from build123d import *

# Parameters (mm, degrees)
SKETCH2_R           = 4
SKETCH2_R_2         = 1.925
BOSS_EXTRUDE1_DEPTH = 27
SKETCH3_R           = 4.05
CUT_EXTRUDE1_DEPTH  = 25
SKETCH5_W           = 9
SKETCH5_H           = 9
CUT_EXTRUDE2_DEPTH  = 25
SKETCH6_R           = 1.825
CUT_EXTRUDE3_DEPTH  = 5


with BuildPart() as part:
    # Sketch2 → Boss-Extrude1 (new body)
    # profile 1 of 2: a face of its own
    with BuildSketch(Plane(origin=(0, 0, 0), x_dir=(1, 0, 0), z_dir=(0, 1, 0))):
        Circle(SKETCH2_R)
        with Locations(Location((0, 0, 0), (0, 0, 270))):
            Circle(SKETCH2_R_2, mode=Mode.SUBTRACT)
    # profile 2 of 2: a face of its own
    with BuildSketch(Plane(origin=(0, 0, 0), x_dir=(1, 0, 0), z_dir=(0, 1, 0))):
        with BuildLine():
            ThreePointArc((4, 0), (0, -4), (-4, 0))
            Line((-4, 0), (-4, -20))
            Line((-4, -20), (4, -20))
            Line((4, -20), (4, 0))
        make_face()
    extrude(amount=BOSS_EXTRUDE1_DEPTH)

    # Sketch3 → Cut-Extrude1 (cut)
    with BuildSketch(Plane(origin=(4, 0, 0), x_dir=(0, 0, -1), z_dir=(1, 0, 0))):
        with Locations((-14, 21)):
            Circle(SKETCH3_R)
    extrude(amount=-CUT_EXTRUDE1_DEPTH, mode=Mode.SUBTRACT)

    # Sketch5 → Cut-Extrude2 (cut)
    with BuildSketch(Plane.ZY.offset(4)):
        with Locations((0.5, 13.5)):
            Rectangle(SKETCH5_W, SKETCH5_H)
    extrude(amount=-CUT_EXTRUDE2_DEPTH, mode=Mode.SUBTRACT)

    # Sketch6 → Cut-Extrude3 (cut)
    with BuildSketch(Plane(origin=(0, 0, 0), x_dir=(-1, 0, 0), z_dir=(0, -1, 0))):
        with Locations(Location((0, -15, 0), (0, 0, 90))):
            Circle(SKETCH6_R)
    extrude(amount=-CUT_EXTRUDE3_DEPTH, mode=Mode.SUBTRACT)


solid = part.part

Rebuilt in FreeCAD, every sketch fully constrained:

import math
import FreeCAD as App
import Part
import Sketcher
from FreeCAD import Vector

doc = App.newDocument("Part")
params = doc.addObject("Spreadsheet::Sheet", "Params")
for row, (alias, value) in enumerate([
    ("sketch1_radius", "4 mm"),
    ("sketch1_diameter", "3.85 mm"),
    ("sketch1_height", "20 mm"),
    ("pad1_length", "27 mm"),
    ("sketch2_diameter", "8.1 mm"),
    ("pocket1_length", "25 mm"),
    ("sketch3_width", "9 mm"),
    ("pocket2_length", "25 mm"),
    ("sketch4_diameter", "3.65 mm"),
    ("pocket3_length", "5 mm"),
], start=1):
    params.set(f"A{row}", alias)
    params.set(f"B{row}", "=" + value)
    params.setAlias(f"B{row}", alias)

body = doc.addObject("PartDesign::Body", "Body")

sketch1 = doc.addObject("Sketcher::SketchObject", "Sketch")
body.addObject(sketch1)
sketch1.AttachmentSupport = (doc.XZ_Plane, [""])
sketch1.MapMode = "FlatFace"
sketch1.addGeometry(Part.ArcOfCircle(Part.Circle(Vector(0, 0, 0), Vector(0, 0, 1), 4), math.radians(180), math.radians(360)), False)
sketch1.addGeometry(Part.LineSegment(Vector(-4, 0, 0), Vector(-4, 20, 0)), False)
sketch1.addGeometry(Part.LineSegment(Vector(-4, 20, 0), Vector(4, 20, 0)), False)
sketch1.addGeometry(Part.LineSegment(Vector(4, 20, 0), Vector(4, 0, 0)), False)
sketch1.addGeometry(Part.Circle(Vector(0, 0, 0), Vector(0, 0, 1), 1.9), False)
sketch1.addConstraint(Sketcher.Constraint("Tangent", 0, 1, 1, 1))
sketch1.addConstraint(Sketcher.Constraint("Coincident", 1, 2, 2, 1))
sketch1.addConstraint(Sketcher.Constraint("Coincident", 2, 2, 3, 1))
sketch1.addConstraint(Sketcher.Constraint("Tangent", 3, 2, 0, 2))
sketch1.addConstraint(Sketcher.Constraint("Vertical", 1))
sketch1.addConstraint(Sketcher.Constraint("Horizontal", 2))
sketch1.addConstraint(Sketcher.Constraint("Vertical", 3))
sketch1.addConstraint(Sketcher.Constraint("Coincident", 0, 3, -1, 1))
sketch1.addConstraint(Sketcher.Constraint("Coincident", 4, 3, -1, 1))
sketch1.addConstraint(Sketcher.Constraint("Radius", 0, 4.0))
sketch1.addConstraint(Sketcher.Constraint("Diameter", 4, 3.85))
sketch1.addConstraint(Sketcher.Constraint("DistanceY", 1, 1, 1, 2, 20.0))
sketch1.setExpression("Constraints[9]", "Params.sketch1_radius")
sketch1.setExpression("Constraints[10]", "Params.sketch1_diameter")
sketch1.setExpression("Constraints[11]", "Params.sketch1_height")
pad1 = doc.addObject("PartDesign::Pad", "Pad")
body.addObject(pad1)
pad1.Profile = sketch1
pad1.setExpression("Length", "Params.pad1_length")
pad1.Reversed = True

sketch2 = doc.addObject("Sketcher::SketchObject", "Sketch001")
body.addObject(sketch2)
sketch2.AttachmentSupport = (doc.YZ_Plane, [""])
sketch2.MapMode = "FlatFace"
sketch2.AttachmentOffset = App.Placement(Vector(0, 0, 4), App.Rotation())
sketch2.addGeometry(Part.Circle(Vector(21, 14, 0), Vector(0, 0, 1), 4), False)
sketch2.addConstraint(Sketcher.Constraint("Diameter", 0, 8.1))
sketch2.addConstraint(Sketcher.Constraint("DistanceX", -1, 1, 0, 3, 21.0))
sketch2.addConstraint(Sketcher.Constraint("DistanceY", -1, 1, 0, 3, 14.0))
sketch2.setExpression("Constraints[0]", "Params.sketch2_diameter")
pocket1 = doc.addObject("PartDesign::Pocket", "Pocket")
body.addObject(pocket1)
pocket1.Profile = sketch2
pocket1.setExpression("Length", "Params.pocket1_length")

sketch3 = doc.addObject("Sketcher::SketchObject", "Sketch002")
body.addObject(sketch3)
sketch3.AttachmentSupport = (doc.YZ_Plane, [""])
sketch3.MapMode = "FlatFace"
sketch3.AttachmentOffset = App.Placement(Vector(0, 0, -4), App.Rotation())
sketch3.addGeometry(Part.LineSegment(Vector(18, -4, 0), Vector(9, -4, 0)), False)
sketch3.addGeometry(Part.LineSegment(Vector(9, -4, 0), Vector(9, 5, 0)), False)
sketch3.addGeometry(Part.LineSegment(Vector(9, 5, 0), Vector(18, 5, 0)), False)
sketch3.addGeometry(Part.LineSegment(Vector(18, 5, 0), Vector(18, -4, 0)), False)
sketch3.addConstraint(Sketcher.Constraint("Coincident", 0, 2, 1, 1))
sketch3.addConstraint(Sketcher.Constraint("Coincident", 1, 2, 2, 1))
sketch3.addConstraint(Sketcher.Constraint("Coincident", 2, 2, 3, 1))
sketch3.addConstraint(Sketcher.Constraint("Coincident", 3, 2, 0, 1))
sketch3.addConstraint(Sketcher.Constraint("Horizontal", 0))
sketch3.addConstraint(Sketcher.Constraint("Vertical", 1))
sketch3.addConstraint(Sketcher.Constraint("Horizontal", 2))
sketch3.addConstraint(Sketcher.Constraint("Vertical", 3))
sketch3.addConstraint(Sketcher.Constraint("Equal", 2, 1))
sketch3.addConstraint(Sketcher.Constraint("DistanceX", 0, 2, 0, 1, 9.0))
sketch3.addConstraint(Sketcher.Constraint("DistanceX", -1, 1, 0, 2, 9.0))
sketch3.addConstraint(Sketcher.Constraint("DistanceY", 0, 2, -1, 1, 4.0))
sketch3.setExpression("Constraints[9]", "Params.sketch3_width")
pocket2 = doc.addObject("PartDesign::Pocket", "Pocket001")
body.addObject(pocket2)
pocket2.Profile = sketch3
pocket2.setExpression("Length", "Params.pocket2_length")
pocket2.Reversed = True

sketch4 = doc.addObject("Sketcher::SketchObject", "Sketch003")
body.addObject(sketch4)
sketch4.AttachmentSupport = (doc.XZ_Plane, [""])
sketch4.MapMode = "FlatFace"
sketch4.addGeometry(Part.Circle(Vector(0, 15, 0), Vector(0, 0, 1), 1.8), False)
sketch4.addConstraint(Sketcher.Constraint("PointOnObject", 0, 3, -2))
sketch4.addConstraint(Sketcher.Constraint("Diameter", 0, 3.65))
sketch4.addConstraint(Sketcher.Constraint("DistanceY", -1, 1, 0, 3, 15.0))
sketch4.setExpression("Constraints[1]", "Params.sketch4_diameter")
pocket3 = doc.addObject("PartDesign::Pocket", "Pocket002")
body.addObject(pocket3)
pocket3.Profile = sketch4
pocket3.setExpression("Length", "Params.pocket3_length")

doc.recompute()
